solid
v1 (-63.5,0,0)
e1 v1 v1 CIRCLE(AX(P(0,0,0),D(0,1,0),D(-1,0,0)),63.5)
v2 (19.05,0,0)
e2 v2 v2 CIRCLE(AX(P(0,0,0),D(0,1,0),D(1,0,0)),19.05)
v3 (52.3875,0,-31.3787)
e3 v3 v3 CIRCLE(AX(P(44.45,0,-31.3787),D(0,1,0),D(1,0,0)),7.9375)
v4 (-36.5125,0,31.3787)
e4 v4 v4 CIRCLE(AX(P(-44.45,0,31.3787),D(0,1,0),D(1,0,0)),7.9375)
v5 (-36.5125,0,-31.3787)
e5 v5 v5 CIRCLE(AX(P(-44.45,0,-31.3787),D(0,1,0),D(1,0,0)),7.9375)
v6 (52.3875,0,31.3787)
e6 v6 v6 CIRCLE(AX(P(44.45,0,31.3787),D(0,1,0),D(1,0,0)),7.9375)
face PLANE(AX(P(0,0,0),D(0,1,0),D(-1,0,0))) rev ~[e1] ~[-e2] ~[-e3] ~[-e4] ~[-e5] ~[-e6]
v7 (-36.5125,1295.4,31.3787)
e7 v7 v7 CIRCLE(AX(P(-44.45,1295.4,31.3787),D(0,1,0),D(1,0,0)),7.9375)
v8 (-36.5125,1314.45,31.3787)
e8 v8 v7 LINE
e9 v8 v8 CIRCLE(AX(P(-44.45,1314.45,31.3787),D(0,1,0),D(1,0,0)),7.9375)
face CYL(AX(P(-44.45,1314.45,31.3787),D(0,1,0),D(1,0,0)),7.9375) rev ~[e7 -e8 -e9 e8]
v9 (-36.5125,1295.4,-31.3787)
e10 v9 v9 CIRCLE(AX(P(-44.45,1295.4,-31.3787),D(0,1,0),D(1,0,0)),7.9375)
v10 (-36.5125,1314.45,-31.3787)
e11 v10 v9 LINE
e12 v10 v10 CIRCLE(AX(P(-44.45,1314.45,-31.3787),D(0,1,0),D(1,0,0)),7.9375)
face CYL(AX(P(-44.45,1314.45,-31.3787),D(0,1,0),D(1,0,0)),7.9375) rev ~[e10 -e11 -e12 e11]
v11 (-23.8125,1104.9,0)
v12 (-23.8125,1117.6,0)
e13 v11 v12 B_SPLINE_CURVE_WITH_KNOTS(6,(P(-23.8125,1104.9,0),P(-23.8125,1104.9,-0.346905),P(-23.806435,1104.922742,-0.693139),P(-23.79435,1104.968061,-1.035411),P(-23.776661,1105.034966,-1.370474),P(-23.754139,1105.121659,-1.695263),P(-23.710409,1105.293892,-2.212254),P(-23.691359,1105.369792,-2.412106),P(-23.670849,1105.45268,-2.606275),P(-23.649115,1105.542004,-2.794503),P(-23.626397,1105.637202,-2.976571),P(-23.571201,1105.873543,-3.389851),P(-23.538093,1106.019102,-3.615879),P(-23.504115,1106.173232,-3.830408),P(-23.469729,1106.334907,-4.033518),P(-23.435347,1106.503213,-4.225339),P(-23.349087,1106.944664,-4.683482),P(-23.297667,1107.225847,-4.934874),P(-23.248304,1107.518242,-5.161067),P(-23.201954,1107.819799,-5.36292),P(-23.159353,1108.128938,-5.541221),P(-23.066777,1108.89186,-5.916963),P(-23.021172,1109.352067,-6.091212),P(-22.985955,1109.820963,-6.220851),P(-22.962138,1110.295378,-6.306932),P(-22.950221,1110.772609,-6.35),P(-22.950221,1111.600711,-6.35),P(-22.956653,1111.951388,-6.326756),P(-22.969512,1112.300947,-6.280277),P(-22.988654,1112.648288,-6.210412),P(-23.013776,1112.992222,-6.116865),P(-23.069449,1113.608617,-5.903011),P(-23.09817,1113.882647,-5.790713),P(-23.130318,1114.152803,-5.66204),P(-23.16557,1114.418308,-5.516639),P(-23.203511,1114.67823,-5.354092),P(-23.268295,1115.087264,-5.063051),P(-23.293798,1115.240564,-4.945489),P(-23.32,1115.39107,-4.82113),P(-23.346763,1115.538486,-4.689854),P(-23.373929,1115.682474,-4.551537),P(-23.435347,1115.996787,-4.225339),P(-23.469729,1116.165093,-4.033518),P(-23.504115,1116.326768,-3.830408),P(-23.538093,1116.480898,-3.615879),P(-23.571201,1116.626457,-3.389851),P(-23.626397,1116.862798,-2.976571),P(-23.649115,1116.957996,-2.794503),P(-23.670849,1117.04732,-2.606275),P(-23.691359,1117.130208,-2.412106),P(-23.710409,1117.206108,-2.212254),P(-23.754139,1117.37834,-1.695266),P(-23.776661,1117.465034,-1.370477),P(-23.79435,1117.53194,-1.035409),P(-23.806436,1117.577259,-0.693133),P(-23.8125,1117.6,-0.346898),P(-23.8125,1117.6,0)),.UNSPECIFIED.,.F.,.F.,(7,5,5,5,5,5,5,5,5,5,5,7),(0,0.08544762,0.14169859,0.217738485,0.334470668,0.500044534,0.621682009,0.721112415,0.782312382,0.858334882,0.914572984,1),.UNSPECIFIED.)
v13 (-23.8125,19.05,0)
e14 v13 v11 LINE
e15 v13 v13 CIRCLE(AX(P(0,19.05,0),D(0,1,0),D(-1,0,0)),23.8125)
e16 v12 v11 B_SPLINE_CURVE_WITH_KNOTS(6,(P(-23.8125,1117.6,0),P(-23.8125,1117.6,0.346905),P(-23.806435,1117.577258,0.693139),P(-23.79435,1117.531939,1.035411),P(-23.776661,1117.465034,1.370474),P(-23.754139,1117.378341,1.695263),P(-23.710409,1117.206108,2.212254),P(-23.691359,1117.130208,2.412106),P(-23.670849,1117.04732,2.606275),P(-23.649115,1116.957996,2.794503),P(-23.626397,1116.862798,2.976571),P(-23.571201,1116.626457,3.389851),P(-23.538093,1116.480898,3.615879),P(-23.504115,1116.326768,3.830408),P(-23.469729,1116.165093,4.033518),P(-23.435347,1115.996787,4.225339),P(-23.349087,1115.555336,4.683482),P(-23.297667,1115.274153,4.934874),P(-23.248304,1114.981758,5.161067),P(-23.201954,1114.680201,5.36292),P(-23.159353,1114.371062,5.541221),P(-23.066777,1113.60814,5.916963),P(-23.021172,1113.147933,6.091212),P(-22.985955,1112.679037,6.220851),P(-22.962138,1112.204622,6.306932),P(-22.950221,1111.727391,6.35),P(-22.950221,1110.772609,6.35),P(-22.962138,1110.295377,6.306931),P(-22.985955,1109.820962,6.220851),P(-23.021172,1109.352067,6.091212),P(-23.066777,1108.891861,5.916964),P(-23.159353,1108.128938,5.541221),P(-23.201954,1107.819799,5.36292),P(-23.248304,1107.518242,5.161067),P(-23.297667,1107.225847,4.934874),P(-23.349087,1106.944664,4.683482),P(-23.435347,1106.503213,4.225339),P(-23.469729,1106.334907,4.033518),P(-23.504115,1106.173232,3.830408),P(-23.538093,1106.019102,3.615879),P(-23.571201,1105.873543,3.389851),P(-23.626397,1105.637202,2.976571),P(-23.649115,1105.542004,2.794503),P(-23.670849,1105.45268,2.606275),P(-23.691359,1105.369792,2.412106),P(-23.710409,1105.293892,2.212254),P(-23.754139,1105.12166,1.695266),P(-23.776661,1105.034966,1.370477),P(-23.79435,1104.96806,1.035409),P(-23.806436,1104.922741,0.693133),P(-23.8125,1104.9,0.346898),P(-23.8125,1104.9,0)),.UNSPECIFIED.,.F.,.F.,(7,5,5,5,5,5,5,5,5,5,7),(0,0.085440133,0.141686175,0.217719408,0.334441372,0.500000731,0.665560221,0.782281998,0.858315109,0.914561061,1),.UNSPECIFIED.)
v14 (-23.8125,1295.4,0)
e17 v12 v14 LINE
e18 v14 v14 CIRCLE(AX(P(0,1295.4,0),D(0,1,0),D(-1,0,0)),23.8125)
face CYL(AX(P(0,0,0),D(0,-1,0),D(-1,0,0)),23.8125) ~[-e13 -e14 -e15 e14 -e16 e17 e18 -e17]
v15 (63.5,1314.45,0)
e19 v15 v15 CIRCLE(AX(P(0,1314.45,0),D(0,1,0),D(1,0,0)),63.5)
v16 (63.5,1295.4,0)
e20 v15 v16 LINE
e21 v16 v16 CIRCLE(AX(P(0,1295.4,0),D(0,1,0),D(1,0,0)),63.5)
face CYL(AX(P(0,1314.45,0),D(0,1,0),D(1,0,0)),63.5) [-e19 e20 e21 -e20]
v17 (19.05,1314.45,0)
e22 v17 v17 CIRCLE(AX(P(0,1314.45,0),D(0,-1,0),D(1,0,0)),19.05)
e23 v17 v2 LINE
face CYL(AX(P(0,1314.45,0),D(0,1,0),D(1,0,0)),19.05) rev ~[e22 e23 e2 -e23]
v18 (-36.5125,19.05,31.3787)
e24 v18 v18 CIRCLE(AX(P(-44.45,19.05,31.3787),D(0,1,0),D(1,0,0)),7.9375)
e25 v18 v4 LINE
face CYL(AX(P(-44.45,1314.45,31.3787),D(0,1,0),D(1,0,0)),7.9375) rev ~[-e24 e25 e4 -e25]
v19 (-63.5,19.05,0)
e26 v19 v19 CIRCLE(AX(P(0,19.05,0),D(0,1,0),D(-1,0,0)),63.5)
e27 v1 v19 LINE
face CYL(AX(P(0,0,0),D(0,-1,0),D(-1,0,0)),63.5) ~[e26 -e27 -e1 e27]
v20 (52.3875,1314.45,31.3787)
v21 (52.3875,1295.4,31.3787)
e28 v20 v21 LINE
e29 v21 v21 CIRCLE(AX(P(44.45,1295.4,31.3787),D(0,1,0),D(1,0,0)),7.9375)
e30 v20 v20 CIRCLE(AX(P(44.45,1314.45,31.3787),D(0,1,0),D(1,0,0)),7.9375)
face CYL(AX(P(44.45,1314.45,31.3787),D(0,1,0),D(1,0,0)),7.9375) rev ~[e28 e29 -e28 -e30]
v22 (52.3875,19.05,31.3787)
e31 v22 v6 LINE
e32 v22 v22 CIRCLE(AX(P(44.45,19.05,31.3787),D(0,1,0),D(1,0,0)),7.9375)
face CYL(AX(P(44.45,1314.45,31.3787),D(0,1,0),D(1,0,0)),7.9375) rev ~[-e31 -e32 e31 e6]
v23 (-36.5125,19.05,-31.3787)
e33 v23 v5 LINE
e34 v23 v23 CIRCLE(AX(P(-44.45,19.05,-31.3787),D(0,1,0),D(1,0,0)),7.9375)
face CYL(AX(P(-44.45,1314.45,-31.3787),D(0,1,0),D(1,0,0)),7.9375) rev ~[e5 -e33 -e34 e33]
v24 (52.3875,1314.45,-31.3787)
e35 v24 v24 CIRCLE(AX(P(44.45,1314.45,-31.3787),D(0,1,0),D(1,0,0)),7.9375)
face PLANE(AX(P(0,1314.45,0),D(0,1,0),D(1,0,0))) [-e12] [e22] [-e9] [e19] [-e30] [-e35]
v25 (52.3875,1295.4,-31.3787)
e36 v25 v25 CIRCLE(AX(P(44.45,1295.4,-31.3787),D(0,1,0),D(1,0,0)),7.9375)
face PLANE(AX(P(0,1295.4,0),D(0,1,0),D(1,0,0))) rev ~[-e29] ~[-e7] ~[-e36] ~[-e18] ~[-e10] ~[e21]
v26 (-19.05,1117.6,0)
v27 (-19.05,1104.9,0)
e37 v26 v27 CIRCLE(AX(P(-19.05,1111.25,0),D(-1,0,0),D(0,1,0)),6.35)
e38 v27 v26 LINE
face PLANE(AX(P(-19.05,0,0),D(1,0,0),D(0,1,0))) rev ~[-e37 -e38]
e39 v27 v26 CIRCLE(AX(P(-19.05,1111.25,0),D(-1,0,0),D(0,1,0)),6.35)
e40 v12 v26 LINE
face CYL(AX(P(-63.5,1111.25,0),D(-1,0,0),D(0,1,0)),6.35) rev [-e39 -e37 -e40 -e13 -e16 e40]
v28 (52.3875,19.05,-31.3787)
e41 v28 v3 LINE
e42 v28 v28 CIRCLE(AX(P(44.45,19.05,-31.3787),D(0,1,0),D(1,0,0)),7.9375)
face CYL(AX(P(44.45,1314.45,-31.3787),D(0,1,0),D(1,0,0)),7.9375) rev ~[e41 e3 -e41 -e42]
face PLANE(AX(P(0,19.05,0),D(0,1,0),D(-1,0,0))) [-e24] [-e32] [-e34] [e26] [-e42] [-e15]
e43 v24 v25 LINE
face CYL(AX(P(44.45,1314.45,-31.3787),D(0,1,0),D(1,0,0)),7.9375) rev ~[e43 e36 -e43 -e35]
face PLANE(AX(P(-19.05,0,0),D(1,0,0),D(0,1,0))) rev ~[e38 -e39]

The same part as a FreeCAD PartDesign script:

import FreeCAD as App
import Part
import Sketcher

V = App.Vector
Q = App.Units.Quantity

doc = App.newDocument("Part")
body = doc.addObject("PartDesign::Body", "Body")

sketch1 = body.newObject("Sketcher::SketchObject", "Sketch")
sketch1.AttachmentSupport = (doc.getObject("XZ_Plane"), [""])
sketch1.MapMode = "FlatFace"
sketch1.addGeometry(Part.Circle(V(0, 0, 0), V(0, 0, 1), 24), False)
sketch1.addConstraint([
    Sketcher.Constraint("Coincident", 0, 3, -1, 1),
    Sketcher.Constraint("Diameter", 0, Q("1.875 in")),
])
pad1 = body.newObject("PartDesign::Pad", "Pad")
pad1.Profile = sketch1
pad1.Length = Q("51.75 in")
pad1.Reversed = True

sketch2 = body.newObject("Sketcher::SketchObject", "Sketch001")
sketch2.AttachmentSupport = (doc.getObject("XZ_Plane"), [""])
sketch2.MapMode = "FlatFace"
sketch2.addGeometry([
    Part.Circle(V(0, 0, 0), V(0, 0, 1), 64),
    Part.Circle(V(0, 0, 0), V(0, 0, 1), 24),
], False)
sketch2.addConstraint([
    Sketcher.Constraint("Coincident", 0, 3, -1, 1),
    Sketcher.Constraint("Coincident", 1, 3, -1, 1),
    Sketcher.Constraint("Diameter", 0, Q("5 in")),
    Sketcher.Constraint("Diameter", 1, Q("1.875 in")),
])
pad2 = body.newObject("PartDesign::Pad", "Pad001")
pad2.Profile = sketch2
pad2.Length = Q("0.75 in")
pad2.Reversed = True

sketch3 = body.newObject("Sketcher::SketchObject", "Sketch002")
sketch3.AttachmentSupport = (doc.getObject("XZ_Plane"), [""])
sketch3.MapMode = "FlatFace"
sketch3.AttachmentOffset = App.Placement(V(0, 0, -51.75 * 25.4), App.Rotation())
sketch3.addGeometry([
    Part.Circle(V(0, 0, 0), V(0, 0, 1), 64),
    Part.Circle(V(0, 0, 0), V(0, 0, 1), 24),
], False)
sketch3.addConstraint([
    Sketcher.Constraint("Coincident", 0, 3, -1, 1),
    Sketcher.Constraint("Coincident", 1, 3, -1, 1),
    Sketcher.Constraint("Diameter", 0, Q("5 in")),
    Sketcher.Constraint("Diameter", 1, Q("1.875 in")),
])
pad3 = body.newObject("PartDesign::Pad", "Pad002")
pad3.Profile = sketch3
pad3.Length = Q("0.75 in")

sketch4 = body.newObject("Sketcher::SketchObject", "Sketch003")
sketch4.AttachmentSupport = (doc.getObject("XZ_Plane"), [""])
sketch4.MapMode = "FlatFace"
sketch4.AttachmentOffset = App.Placement(V(0, 0, -51.75 * 25.4), App.Rotation())
sketch4.addGeometry(Part.Circle(V(0, 0, 0), V(0, 0, 1), 19), False)
sketch4.addConstraint([
    Sketcher.Constraint("Coincident", 0, 3, -1, 1),
    Sketcher.Constraint("Diameter", 0, Q("1.5 in")),
])
pocket1 = body.newObject("PartDesign::Pocket", "Pocket")
pocket1.Profile = sketch4
pocket1.Length = Q("51.75 in")
pocket1.Reversed = True

sketch5 = body.newObject("Sketcher::SketchObject", "Sketch004")
sketch5.AttachmentSupport = (doc.getObject("XZ_Plane"), [""])
sketch5.MapMode = "FlatFace"
sketch5.AttachmentOffset = App.Placement(V(0, 0, -51.75 * 25.4), App.Rotation())
sketch5.addGeometry([
    Part.Circle(V(44, -31, 0), V(0, 0, 1), 8),
    Part.Circle(V(44, 31, 0), V(0, 0, 1), 8),
    Part.Circle(V(-44, -31, 0), V(0, 0, 1), 8),
    Part.Circle(V(-44, 31, 0), V(0, 0, 1), 8),
], False)
sketch5.addConstraint([
    Sketcher.Constraint("Equal", 0, 1),
    Sketcher.Constraint("Equal", 1, 2),
    Sketcher.Constraint("Equal", 2, 3),
    Sketcher.Constraint("Symmetric", 1, 3, 2, 3, -1, 1),
    Sketcher.Constraint("Symmetric", 0, 3, 3, 3, -1, 1),
    Sketcher.Constraint("Symmetric", 0, 3, 2, 3, -2),
    Sketcher.Constraint("Diameter", 0, Q("0.625 in")),
    Sketcher.Constraint("DistanceX", -1, 1, 0, 3, Q("1.75 in")),
    Sketcher.Constraint("DistanceY", 0, 3, -1, 1, Q("31.3787 mm")),
])
pocket2 = body.newObject("PartDesign::Pocket", "Pocket001")
pocket2.Profile = sketch5
pocket2.Length = Q("51.75 in")
pocket2.Reversed = True

sketch6 = body.newObject("Sketcher::SketchObject", "Sketch005")
sketch6.AttachmentSupport = (doc.getObject("YZ_Plane"), [""])
sketch6.MapMode = "FlatFace"
sketch6.AttachmentOffset = App.Placement(V(0, 0, -2.5 * 25.4), App.Rotation())
sketch6.addGeometry(Part.Circle(V(1111, 0, 0), V(0, 0, 1), 6), False)
sketch6.addConstraint([
    Sketcher.Constraint("PointOnObject", 0, 3, -1),
    Sketcher.Constraint("Diameter", 0, Q("0.5 in")),
    Sketcher.Constraint("DistanceX", -1, 1, 0, 3, Q("43.75 in")),
])
pocket3 = body.newObject("PartDesign::Pocket", "Pocket002")
pocket3.Profile = sketch6
pocket3.Length = Q("1.75 in")
pocket3.Reversed = True

doc.recompute()
